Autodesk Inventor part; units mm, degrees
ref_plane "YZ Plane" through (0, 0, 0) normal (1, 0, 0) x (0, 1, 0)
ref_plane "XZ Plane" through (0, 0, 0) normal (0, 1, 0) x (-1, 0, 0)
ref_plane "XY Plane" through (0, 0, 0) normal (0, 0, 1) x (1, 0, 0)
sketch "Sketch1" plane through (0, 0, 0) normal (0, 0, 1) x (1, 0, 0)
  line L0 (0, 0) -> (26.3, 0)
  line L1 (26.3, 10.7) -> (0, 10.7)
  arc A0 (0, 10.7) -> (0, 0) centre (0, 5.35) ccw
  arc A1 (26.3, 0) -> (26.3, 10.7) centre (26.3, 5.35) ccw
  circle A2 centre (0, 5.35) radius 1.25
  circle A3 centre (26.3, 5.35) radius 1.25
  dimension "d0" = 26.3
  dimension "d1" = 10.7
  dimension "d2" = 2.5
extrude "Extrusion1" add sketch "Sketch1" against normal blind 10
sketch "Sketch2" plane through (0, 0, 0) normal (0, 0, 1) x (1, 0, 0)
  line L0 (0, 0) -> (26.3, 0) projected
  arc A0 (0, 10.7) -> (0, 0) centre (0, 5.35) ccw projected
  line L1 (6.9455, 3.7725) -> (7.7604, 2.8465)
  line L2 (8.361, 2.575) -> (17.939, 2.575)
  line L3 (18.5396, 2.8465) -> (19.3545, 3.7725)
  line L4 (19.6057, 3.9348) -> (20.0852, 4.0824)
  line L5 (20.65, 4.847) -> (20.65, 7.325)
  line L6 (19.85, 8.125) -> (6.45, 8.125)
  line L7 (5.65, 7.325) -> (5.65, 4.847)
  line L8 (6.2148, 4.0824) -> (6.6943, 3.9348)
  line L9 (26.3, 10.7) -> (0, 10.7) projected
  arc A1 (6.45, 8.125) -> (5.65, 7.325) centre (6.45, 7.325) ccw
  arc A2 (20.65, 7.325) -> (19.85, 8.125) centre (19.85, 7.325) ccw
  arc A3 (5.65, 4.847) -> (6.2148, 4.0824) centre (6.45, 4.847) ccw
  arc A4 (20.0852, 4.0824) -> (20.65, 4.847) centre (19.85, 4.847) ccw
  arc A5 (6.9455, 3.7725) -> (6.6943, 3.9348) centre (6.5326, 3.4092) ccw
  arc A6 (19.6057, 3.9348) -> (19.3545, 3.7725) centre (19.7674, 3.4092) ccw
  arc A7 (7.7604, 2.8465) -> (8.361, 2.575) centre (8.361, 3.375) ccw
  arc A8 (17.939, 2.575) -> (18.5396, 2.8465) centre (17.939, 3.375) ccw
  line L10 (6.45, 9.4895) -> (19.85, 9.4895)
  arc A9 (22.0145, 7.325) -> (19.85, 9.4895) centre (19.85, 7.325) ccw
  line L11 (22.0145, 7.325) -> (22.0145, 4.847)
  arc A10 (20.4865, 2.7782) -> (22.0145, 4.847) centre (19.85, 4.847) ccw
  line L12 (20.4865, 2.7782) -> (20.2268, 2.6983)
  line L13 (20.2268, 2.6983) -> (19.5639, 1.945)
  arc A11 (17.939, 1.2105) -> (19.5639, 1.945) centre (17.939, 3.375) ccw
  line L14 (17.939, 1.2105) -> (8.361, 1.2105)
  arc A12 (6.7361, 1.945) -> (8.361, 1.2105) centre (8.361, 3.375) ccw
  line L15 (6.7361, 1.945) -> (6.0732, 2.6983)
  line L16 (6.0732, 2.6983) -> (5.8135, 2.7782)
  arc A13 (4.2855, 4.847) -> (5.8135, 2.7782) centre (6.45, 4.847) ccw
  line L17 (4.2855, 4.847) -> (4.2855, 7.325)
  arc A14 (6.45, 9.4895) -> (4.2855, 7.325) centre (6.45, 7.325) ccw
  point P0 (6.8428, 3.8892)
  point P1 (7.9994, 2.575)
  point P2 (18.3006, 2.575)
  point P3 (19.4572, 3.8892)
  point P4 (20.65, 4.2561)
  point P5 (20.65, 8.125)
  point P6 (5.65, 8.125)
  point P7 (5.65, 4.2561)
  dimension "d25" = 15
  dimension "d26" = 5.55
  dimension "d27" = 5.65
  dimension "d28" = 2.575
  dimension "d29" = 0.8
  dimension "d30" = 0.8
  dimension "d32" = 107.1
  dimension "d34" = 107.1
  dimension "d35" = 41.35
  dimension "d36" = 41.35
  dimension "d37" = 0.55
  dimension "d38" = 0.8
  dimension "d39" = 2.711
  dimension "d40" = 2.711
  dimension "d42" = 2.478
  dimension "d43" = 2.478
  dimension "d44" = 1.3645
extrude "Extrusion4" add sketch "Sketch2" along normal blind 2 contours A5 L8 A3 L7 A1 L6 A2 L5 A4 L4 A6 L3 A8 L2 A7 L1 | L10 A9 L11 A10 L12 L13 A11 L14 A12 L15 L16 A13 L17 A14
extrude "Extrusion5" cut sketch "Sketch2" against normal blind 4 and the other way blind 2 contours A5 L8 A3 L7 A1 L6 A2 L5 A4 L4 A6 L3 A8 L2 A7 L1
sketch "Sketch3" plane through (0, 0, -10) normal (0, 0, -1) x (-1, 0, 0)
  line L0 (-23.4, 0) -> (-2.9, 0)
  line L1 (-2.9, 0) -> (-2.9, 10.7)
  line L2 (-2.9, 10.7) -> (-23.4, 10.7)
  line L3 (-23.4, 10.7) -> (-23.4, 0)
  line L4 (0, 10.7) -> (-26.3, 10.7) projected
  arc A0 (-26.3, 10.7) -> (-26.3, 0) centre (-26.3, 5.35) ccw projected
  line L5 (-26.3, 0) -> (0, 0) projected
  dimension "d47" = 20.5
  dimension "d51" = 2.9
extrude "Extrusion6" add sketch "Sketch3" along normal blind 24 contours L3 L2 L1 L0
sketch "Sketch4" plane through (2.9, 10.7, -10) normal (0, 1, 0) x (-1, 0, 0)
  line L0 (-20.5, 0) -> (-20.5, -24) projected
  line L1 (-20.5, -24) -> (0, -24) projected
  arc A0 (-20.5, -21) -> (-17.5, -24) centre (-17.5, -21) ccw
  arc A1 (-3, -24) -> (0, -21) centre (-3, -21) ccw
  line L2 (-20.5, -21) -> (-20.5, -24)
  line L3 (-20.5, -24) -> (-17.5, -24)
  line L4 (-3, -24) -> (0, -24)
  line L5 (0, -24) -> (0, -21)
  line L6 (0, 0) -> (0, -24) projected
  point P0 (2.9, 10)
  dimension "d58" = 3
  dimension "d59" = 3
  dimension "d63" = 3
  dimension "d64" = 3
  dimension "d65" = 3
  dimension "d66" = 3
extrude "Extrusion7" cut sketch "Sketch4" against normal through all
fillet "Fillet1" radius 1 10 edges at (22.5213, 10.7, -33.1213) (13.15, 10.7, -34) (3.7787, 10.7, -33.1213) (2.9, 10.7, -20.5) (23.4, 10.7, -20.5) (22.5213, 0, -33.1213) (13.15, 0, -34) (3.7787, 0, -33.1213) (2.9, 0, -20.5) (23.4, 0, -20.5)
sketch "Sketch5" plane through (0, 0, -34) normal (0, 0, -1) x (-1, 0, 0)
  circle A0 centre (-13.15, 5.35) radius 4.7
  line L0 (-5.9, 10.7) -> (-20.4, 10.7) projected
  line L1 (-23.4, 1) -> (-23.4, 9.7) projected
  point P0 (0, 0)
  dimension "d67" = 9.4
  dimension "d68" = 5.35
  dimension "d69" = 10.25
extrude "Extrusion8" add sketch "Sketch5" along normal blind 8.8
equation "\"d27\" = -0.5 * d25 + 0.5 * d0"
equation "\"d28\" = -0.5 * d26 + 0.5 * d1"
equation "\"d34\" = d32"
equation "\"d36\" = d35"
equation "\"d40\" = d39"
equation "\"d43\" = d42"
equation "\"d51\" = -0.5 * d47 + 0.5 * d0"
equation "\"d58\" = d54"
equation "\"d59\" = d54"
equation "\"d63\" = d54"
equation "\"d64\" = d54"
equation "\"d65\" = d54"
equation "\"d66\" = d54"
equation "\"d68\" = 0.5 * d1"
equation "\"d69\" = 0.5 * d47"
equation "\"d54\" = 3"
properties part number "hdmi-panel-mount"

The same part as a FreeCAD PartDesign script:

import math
import FreeCAD as App
import Part
import Sketcher

V = App.Vector
Q = App.Units.Quantity


def edges_at(feature, points):
    """Names of the edges that pass closest to the given points."""
    edges = feature.Shape.Edges
    near = lambda p: min(range(len(edges)), key=lambda i: edges[i].distToShape(Part.Vertex(*p))[0])
    return sorted({f"Edge{near(p) + 1}" for p in points})


def add_polygon(sketch, points):
    """Adds a closed chain of lines whose ends are joined by coincident constraints."""
    first, n = sketch.GeometryCount, len(points)
    for a, b in zip(points, points[1:] + points[:1]):
        sketch.addGeometry(Part.LineSegment(App.Vector(*a, 0), App.Vector(*b, 0)), False)
    for i in range(n):
        sketch.addConstraint(Sketcher.Constraint("Coincident", first + i, 2, first + (i + 1) % n, 1))

doc = App.newDocument("Part")
body = doc.addObject("PartDesign::Body", "Body")

# Sketch on XY plane
sketch1 = doc.addObject("Sketcher::SketchObject", "Sketch")
body.addObject(sketch1)
sketch1.AttachmentSupport = (doc.XY_Plane, [""])
sketch1.MapMode = "FlatFace"
sketch1.addGeometry(Part.ArcOfCircle(Part.Circle(V(0, 5.3, 0), V(0, 0, 1), 5.3), math.radians(90), math.radians(270)), False)
sketch1.addGeometry(Part.LineSegment(V(0, 0, 0), V(26.3, 0, 0)), False)
sketch1.addGeometry(Part.ArcOfCircle(Part.Circle(V(26.3, 5.3, 0), V(0, 0, 1), 5.3), math.radians(-90), math.radians(90)), False)
sketch1.addGeometry(Part.LineSegment(V(26.3, 10.7, 0), V(0, 10.7, 0)), False)
sketch1.addGeometry(Part.Circle(V(0, 5.3, 0), V(0, 0, 1), 1.2), False)
sketch1.addGeometry(Part.Circle(V(26.3, 5.3, 0), V(0, 0, 1), 1.2), False)
sketch1.addConstraint(Sketcher.Constraint("Tangent", 0, 2, 1, 1))
sketch1.addConstraint(Sketcher.Constraint("Tangent", 1, 2, 2, 1))
sketch1.addConstraint(Sketcher.Constraint("Tangent", 2, 2, 3, 1))
sketch1.addConstraint(Sketcher.Constraint("Tangent", 3, 2, 0, 1))
sketch1.addConstraint(Sketcher.Constraint("Horizontal", 1))
sketch1.addConstraint(Sketcher.Constraint("Horizontal", 3))
sketch1.addConstraint(Sketcher.Constraint("Coincident", 0, 2, -1, 1))
sketch1.addConstraint(Sketcher.Constraint("Coincident", 4, 3, 0, 3))
sketch1.addConstraint(Sketcher.Constraint("Coincident", 5, 3, 2, 3))
sketch1.addConstraint(Sketcher.Constraint("Equal", 4, 5))
sketch1.addConstraint(Sketcher.Constraint("Diameter", 4, 2.5))
sketch1.addConstraint(Sketcher.Constraint("Radius", 0, 5.35))
sketch1.addConstraint(Sketcher.Constraint("DistanceX", 1, 1, 1, 2, 26.3))
pad1 = doc.addObject("PartDesign::Pad", "Pad")
body.addObject(pad1)
pad1.Profile = sketch1
pad1.Length = 10
pad1.Reversed = True

# Sketch on XY plane
sketch2 = doc.addObject("Sketcher::SketchObject", "Sketch001")
body.addObject(sketch2)
sketch2.AttachmentSupport = (doc.XY_Plane, [""])
sketch2.MapMode = "FlatFace"
sketch2.addGeometry(Part.LineSegment(V(19.85, 9.49, 0), V(6.45, 9.49, 0)), False)
sketch2.addGeometry(Part.ArcOfCircle(Part.Circle(V(6.45, 7.33, 0), V(0, 0, 1), 2.16), math.radians(90), math.radians(180)), False)
sketch2.addGeometry(Part.LineSegment(V(4.29, 7.33, 0), V(4.29, 4.85, 0)), False)
sketch2.addGeometry(Part.ArcOfCircle(Part.Circle(V(6.45, 4.85, 0), V(0, 0, 1), 2.16), math.radians(180), math.radians(253)), False)
sketch2.addGeometry(Part.LineSegment(V(5.81, 2.78, 0), V(6.07, 2.7, 0)), False)
sketch2.addGeometry(Part.LineSegment(V(6.07, 2.7, 0), V(6.74, 1.95, 0)), False)
sketch2.addGeometry(Part.ArcOfCircle(Part.Circle(V(8.36, 3.38, 0), V(0, 0, 1), 2.16), math.radians(-139), math.radians(-90)), False)
sketch2.addGeometry(Part.LineSegment(V(8.36, 1.21, 0), V(17.94, 1.21, 0)), False)
sketch2.addGeometry(Part.ArcOfCircle(Part.Circle(V(17.94, 3.38, 0), V(0, 0, 1), 2.16), math.radians(-90), math.radians(-41)), False)
sketch2.addGeometry(Part.LineSegment(V(19.56, 1.95, 0), V(20.23, 2.7, 0)), False)
sketch2.addGeometry(Part.LineSegment(V(20.23, 2.7, 0), V(20.49, 2.78, 0)), False)
sketch2.addGeometry(Part.ArcOfCircle(Part.Circle(V(19.85, 4.85, 0), V(0, 0, 1), 2.16), math.radians(-73), math.radians(0)), False)
sketch2.addGeometry(Part.LineSegment(V(22.01, 4.85, 0), V(22.01, 7.33, 0)), False)
sketch2.addGeometry(Part.ArcOfCircle(Part.Circle(V(19.85, 7.33, 0), V(0, 0, 1), 2.16), math.radians(0), math.radians(90)), False)
sketch2.addConstraint(Sketcher.Constraint("Tangent", 0, 2, 1, 1))
sketch2.addConstraint(Sketcher.Constraint("Tangent", 1, 2, 2, 1))
sketch2.addConstraint(Sketcher.Constraint("Tangent", 2, 2, 3, 1))
sketch2.addConstraint(Sketcher.Constraint("Tangent", 3, 2, 4, 1))
sketch2.addConstraint(Sketcher.Constraint("Coincident", 4, 2, 5, 1))
sketch2.addConstraint(Sketcher.Constraint("Tangent", 5, 2, 6, 1))
sketch2.addConstraint(Sketcher.Constraint("Tangent", 6, 2, 7, 1))
sketch2.addConstraint(Sketcher.Constraint("Tangent", 7, 2, 8, 1))
sketch2.addConstraint(Sketcher.Constraint("Tangent", 8, 2, 9, 1))
sketch2.addConstraint(Sketcher.Constraint("Coincident", 9, 2, 10, 1))
sketch2.addConstraint(Sketcher.Constraint("Tangent", 10, 2, 11, 1))
sketch2.addConstraint(Sketcher.Constraint("Tangent", 11, 2, 12, 1))
sketch2.addConstraint(Sketcher.Constraint("Tangent", 12, 2, 13, 1))
sketch2.addConstraint(Sketcher.Constraint("Tangent", 13, 2, 0, 1))
sketch2.addConstraint(Sketcher.Constraint("Horizontal", 0))
sketch2.addConstraint(Sketcher.Constraint("Vertical", 2))
sketch2.addConstraint(Sketcher.Constraint("Horizontal", 7))
sketch2.addConstraint(Sketcher.Constraint("Vertical", 12))
sketch2.addConstraint(Sketcher.Constraint("Equal", 1, 3))
sketch2.addConstraint(Sketcher.Constraint("Equal", 3, 6))
sketch2.addConstraint(Sketcher.Constraint("Equal", 6, 8))
sketch2.addConstraint(Sketcher.Constraint("Equal", 8, 11))
sketch2.addConstraint(Sketcher.Constraint("Equal", 11, 13))
sketch2.addConstraint(Sketcher.Constraint("Horizontal", 3, 3, 11, 3))
sketch2.addConstraint(Sketcher.Constraint("Horizontal", 5, 2, 8, 2))
sketch2.addConstraint(Sketcher.Constraint("Horizontal", 4, 2, 9, 2))
sketch2.addConstraint(Sketcher.Constraint("Horizontal", 3, 2, 10, 2))
sketch2.addConstraint(Sketcher.Constraint("DistanceY", 2, 2, 2, 1, 2.478))
sketch2.addConstraint(Sketcher.Constraint("DistanceX", 0, 2, 0, 1, 13.4))
sketch2.addConstraint(Sketcher.Constraint("Angle", 4, Q("-17.1012 deg")))
sketch2.addConstraint(Sketcher.Constraint("Radius", 1, 2.1645))
sketch2.addConstraint(Sketcher.Constraint("DistanceX", 7, 1, 7, 2, 9.578))
sketch2.addConstraint(Sketcher.Constraint("DistanceX", -1, 1, 1, 3, 6.45))
sketch2.addConstraint(Sketcher.Constraint("DistanceY", 6, 3, 1, 3, 3.95))
sketch2.addConstraint(Sketcher.Constraint("DistanceY", 4, 2, 3, 2, 0.08))
sketch2.addConstraint(Sketcher.Constraint("DistanceY", -1, 1, 1, 3, 7.325))
pad2 = doc.addObject("PartDesign::Pad", "Pad001")
body.addObject(pad2)
pad2.Profile = sketch2
pad2.Length = 2

# Sketch on XY plane
sketch3 = doc.addObject("Sketcher::SketchObject", "Sketch002")
body.addObject(sketch3)
sketch3.AttachmentSupport = (doc.XY_Plane, [""])
sketch3.MapMode = "FlatFace"
sketch3.addGeometry(Part.ArcOfCircle(Part.Circle(V(6.53, 3.41, 0), V(0, 0, 1), 0.55), math.radians(41), math.radians(73)), False)
sketch3.addGeometry(Part.LineSegment(V(6.95, 3.77, 0), V(7.76, 2.85, 0)), False)
sketch3.addGeometry(Part.ArcOfCircle(Part.Circle(V(8.36, 3.38, 0), V(0, 0, 1), 0.8), math.radians(-139), math.radians(-90)), False)
sketch3.addGeometry(Part.LineSegment(V(8.36, 2.58, 0), V(17.94, 2.58, 0)), False)
sketch3.addGeometry(Part.ArcOfCircle(Part.Circle(V(17.94, 3.38, 0), V(0, 0, 1), 0.8), math.radians(-90), math.radians(-41)), False)
sketch3.addGeometry(Part.LineSegment(V(18.54, 2.85, 0), V(19.35, 3.77, 0)), False)
sketch3.addGeometry(Part.ArcOfCircle(Part.Circle(V(19.77, 3.41, 0), V(0, 0, 1), 0.55), math.radians(107), math.radians(139)), False)
sketch3.addGeometry(Part.LineSegment(V(19.61, 3.93, 0), V(20.09, 4.08, 0)), False)
sketch3.addGeometry(Part.ArcOfCircle(Part.Circle(V(19.85, 4.85, 0), V(0, 0, 1), 0.8), math.radians(-73), math.radians(0)), False)
sketch3.addGeometry(Part.LineSegment(V(20.65, 4.85, 0), V(20.65, 7.33, 0)), False)
sketch3.addGeometry(Part.ArcOfCircle(Part.Circle(V(19.85, 7.33, 0), V(0, 0, 1), 0.8), math.radians(0), math.radians(90)), False)
sketch3.addGeometry(Part.LineSegment(V(19.85, 8.12, 0), V(6.45, 8.12, 0)), False)
sketch3.addGeometry(Part.ArcOfCircle(Part.Circle(V(6.45, 7.33, 0), V(0, 0, 1), 0.8), math.radians(90), math.radians(180)), False)
sketch3.addGeometry(Part.LineSegment(V(5.65, 7.33, 0), V(5.65, 4.85, 0)), False)
sketch3.addGeometry(Part.ArcOfCircle(Part.Circle(V(6.45, 4.85, 0), V(0, 0, 1), 0.8), math.radians(180), math.radians(253)), False)
sketch3.addGeometry(Part.LineSegment(V(6.21, 4.08, 0), V(6.69, 3.93, 0)), False)
sketch3.addConstraint(Sketcher.Constraint("Tangent", 0, 1, 1, 1))
sketch3.addConstraint(Sketcher.Constraint("Tangent", 1, 2, 2, 1))
sketch3.addConstraint(Sketcher.Constraint("Tangent", 2, 2, 3, 1))
sketch3.addConstraint(Sketcher.Constraint("Tangent", 3, 2, 4, 1))
sketch3.addConstraint(Sketcher.Constraint("Tangent", 4, 2, 5, 1))
sketch3.addConstraint(Sketcher.Constraint("Tangent", 5, 2, 6, 2))
sketch3.addConstraint(Sketcher.Constraint("Tangent", 6, 1, 7, 1))
sketch3.addConstraint(Sketcher.Constraint("Tangent", 7, 2, 8, 1))
sketch3.addConstraint(Sketcher.Constraint("Tangent", 8, 2, 9, 1))
sketch3.addConstraint(Sketcher.Constraint("Tangent", 9, 2, 10, 1))
sketch3.addConstraint(Sketcher.Constraint("Tangent", 10, 2, 11, 1))
sketch3.addConstraint(Sketcher.Constraint("Tangent", 11, 2, 12, 1))
sketch3.addConstraint(Sketcher.Constraint("Tangent", 12, 2, 13, 1))
sketch3.addConstraint(Sketcher.Constraint("Tangent", 13, 2, 14, 1))
sketch3.addConstraint(Sketcher.Constraint("Tangent", 14, 2, 15, 1))
sketch3.addConstraint(Sketcher.Constraint("Tangent", 15, 2, 0, 2))
sketch3.addConstraint(Sketcher.Constraint("Horizontal", 3))
sketch3.addConstraint(Sketcher.Constraint("Vertical", 9))
sketch3.addConstraint(Sketcher.Constraint("Horizontal", 11))
sketch3.addConstraint(Sketcher.Constraint("Vertical", 13))
sketch3.addConstraint(Sketcher.Constraint("Equal", 2, 4))
sketch3.addConstraint(Sketcher.Constraint("Equal", 0, 6))
sketch3.addConstraint(Sketcher.Constraint("Equal", 4, 8))
sketch3.addConstraint(Sketcher.Constraint("Equal", 8, 10))
sketch3.addConstraint(Sketcher.Constraint("Equal", 10, 12))
sketch3.addConstraint(Sketcher.Constraint("Equal", 12, 14))
sketch3.addConstraint(Sketcher.Constraint("Horizontal", 0, 3, 6, 3))
sketch3.addConstraint(Sketcher.Constraint("Horizontal", 8, 3, 14, 3))
sketch3.addConstraint(Sketcher.Constraint("Horizontal", 1, 2, 4, 2))
sketch3.addConstraint(Sketcher.Constraint("Horizontal", 7, 2, 14, 2))
sketch3.addConstraint(Sketcher.Constraint("Radius", 2, 0.8))
sketch3.addConstraint(Sketcher.Constraint("Radius", 0, 0.55))
sketch3.addConstraint(Sketcher.Constraint("DistanceY", 9, 1, 9, 2, 2.478))
sketch3.addConstraint(Sketcher.Constraint("DistanceX", -1, 1, 12, 2, 5.65))
sketch3.addConstraint(Sketcher.Constraint("DistanceX", 11, 2, 11, 1, 13.4))
sketch3.addConstraint(Sketcher.Constraint("DistanceY", -1, 1, 2, 2, 2.575))
sketch3.addConstraint(Sketcher.Constraint("Angle", 7, Q("17.1094 deg")))
sketch3.addConstraint(Sketcher.Constraint("DistanceX", 3, 1, 3, 2, 9.578))
sketch3.addConstraint(Sketcher.Constraint("DistanceY", 4, 3, 10, 3, 3.95))
sketch3.addConstraint(Sketcher.Constraint("DistanceY", 5, 2, 7, 2, 0.31))
pocket1 = doc.addObject("PartDesign::Pocket", "Pocket")
body.addObject(pocket1)
pocket1.Profile = sketch3
pocket1.Type = "TwoLengths"
pocket1.Length = 4
pocket1.Length2 = 2

# Sketch on XY plane
sketch4 = doc.addObject("Sketcher::SketchObject", "Sketch003")
body.addObject(sketch4)
sketch4.AttachmentSupport = (doc.XY_Plane, [""])
sketch4.MapMode = "FlatFace"
sketch4.AttachmentOffset = App.Placement(V(0, 0, -10), App.Rotation())
add_polygon(sketch4, [(23, 11), (23, 0), (3, 0), (3, 11)])  # lines 0-3
sketch4.addConstraint(Sketcher.Constraint("Vertical", 0))
sketch4.addConstraint(Sketcher.Constraint("Horizontal", 1))
sketch4.addConstraint(Sketcher.Constraint("Vertical", 2))
sketch4.addConstraint(Sketcher.Constraint("Horizontal", 3))
sketch4.addConstraint(Sketcher.Constraint("PointOnObject", 0, 2, -1))
sketch4.addConstraint(Sketcher.Constraint("DistanceX", 1, 2, 1, 1, 20.5))
sketch4.addConstraint(Sketcher.Constraint("DistanceX", -1, 1, 1, 2, 2.9))
sketch4.addConstraint(Sketcher.Constraint("DistanceY", 0, 2, 0, 1, 10.7))
pad3 = doc.addObject("PartDesign::Pad", "Pad002")
body.addObject(pad3)
pad3.Profile = sketch4
pad3.Length = 24
pad3.Reversed = True

# Sketch on XZ plane
sketch5 = doc.addObject("Sketcher::SketchObject", "Sketch004")
body.addObject(sketch5)
sketch5.AttachmentSupport = (doc.XZ_Plane, [""])
sketch5.MapMode = "FlatFace"
sketch5.AttachmentOffset = App.Placement(V(0, 0, -10.7), App.Rotation())
sketch5.addGeometry(Part.ArcOfCircle(Part.Circle(V(20.4, -31, 0), V(0, 0, 1), 3), math.radians(-90), math.radians(0)), False)
sketch5.addGeometry(Part.LineSegment(V(23.4, -31, 0), V(23.4, -34, 0)), False)
sketch5.addGeometry(Part.LineSegment(V(23.4, -34, 0), V(20.4, -34, 0)), False)
sketch5.addGeometry(Part.ArcOfCircle(Part.Circle(V(5.9, -31, 0), V(0, 0, 1), 3), math.radians(180), math.radians(270)), False)
sketch5.addGeometry(Part.LineSegment(V(5.9, -34, 0), V(2.9, -34, 0)), False)
sketch5.addGeometry(Part.LineSegment(V(2.9, -34, 0), V(2.9, -31, 0)), False)
sketch5.addConstraint(Sketcher.Constraint("Tangent", 0, 2, 1, 1))
sketch5.addConstraint(Sketcher.Constraint("Coincident", 1, 2, 2, 1))
sketch5.addConstraint(Sketcher.Constraint("Tangent", 2, 2, 0, 1))
sketch5.addConstraint(Sketcher.Constraint("Tangent", 3, 2, 4, 1))
sketch5.addConstraint(Sketcher.Constraint("Coincident", 4, 2, 5, 1))
sketch5.addConstraint(Sketcher.Constraint("Tangent", 5, 2, 3, 1))
sketch5.addConstraint(Sketcher.Constraint("Vertical", 1))
sketch5.addConstraint(Sketcher.Constraint("Horizontal", 2))
sketch5.addConstraint(Sketcher.Constraint("Horizontal", 4))
sketch5.addConstraint(Sketcher.Constraint("Vertical", 5))
sketch5.addConstraint(Sketcher.Constraint("Equal", 0, 3))
sketch5.addConstraint(Sketcher.Constraint("Horizontal", 0, 3, 3, 3))
sketch5.addConstraint(Sketcher.Constraint("Radius", 0, 3.0))
sketch5.addConstraint(Sketcher.Constraint("DistanceY", 0, 3, -1, 1, 31.0))
sketch5.addConstraint(Sketcher.Constraint("DistanceX", -1, 1, 0, 3, 20.4))
sketch5.addConstraint(Sketcher.Constraint("DistanceX", -1, 1, 3, 3, 5.9))
pocket2 = doc.addObject("PartDesign::Pocket", "Pocket001")
body.addObject(pocket2)
pocket2.Profile = sketch5
pocket2.Type = "ThroughAll"
pocket2.Reversed = True
doc.recompute()

fillet = doc.addObject("PartDesign::Fillet", "Fillet")
body.addObject(fillet)
fillet.Base = (pocket2, edges_at(pocket2, [
    (22.521, 10.7, -33.121),
    (13.15, 10.7, -34),
    (3.779, 10.7, -33.121),
    (2.9, 10.7, -20.5),
    (23.4, 10.7, -20.5),
    (22.521, 0, -33.121),
    (13.15, 0, -34),
    (3.779, 0, -33.121),
    (2.9, 0, -20.5),
    (23.4, 0, -20.5),
]))
fillet.Radius = 1

# Sketch on XY plane
sketch6 = doc.addObject("Sketcher::SketchObject", "Sketch005")
body.addObject(sketch6)
sketch6.AttachmentSupport = (doc.XY_Plane, [""])
sketch6.MapMode = "FlatFace"
sketch6.AttachmentOffset = App.Placement(V(0, 0, -34), App.Rotation())
sketch6.addGeometry(Part.Circle(V(13.2, 5.3, 0), V(0, 0, 1), 4.7), False)
sketch6.addConstraint(Sketcher.Constraint("Diameter", 0, 9.4))
sketch6.addConstraint(Sketcher.Constraint("DistanceY", -1, 1, 0, 3, 5.35))
sketch6.addConstraint(Sketcher.Constraint("DistanceX", -1, 1, 0, 3, 13.15))
pad4 = doc.addObject("PartDesign::Pad", "Pad003")
body.addObject(pad4)
pad4.Profile = sketch6
pad4.Length = 8.8
pad4.Reversed = True

doc.recompute()
